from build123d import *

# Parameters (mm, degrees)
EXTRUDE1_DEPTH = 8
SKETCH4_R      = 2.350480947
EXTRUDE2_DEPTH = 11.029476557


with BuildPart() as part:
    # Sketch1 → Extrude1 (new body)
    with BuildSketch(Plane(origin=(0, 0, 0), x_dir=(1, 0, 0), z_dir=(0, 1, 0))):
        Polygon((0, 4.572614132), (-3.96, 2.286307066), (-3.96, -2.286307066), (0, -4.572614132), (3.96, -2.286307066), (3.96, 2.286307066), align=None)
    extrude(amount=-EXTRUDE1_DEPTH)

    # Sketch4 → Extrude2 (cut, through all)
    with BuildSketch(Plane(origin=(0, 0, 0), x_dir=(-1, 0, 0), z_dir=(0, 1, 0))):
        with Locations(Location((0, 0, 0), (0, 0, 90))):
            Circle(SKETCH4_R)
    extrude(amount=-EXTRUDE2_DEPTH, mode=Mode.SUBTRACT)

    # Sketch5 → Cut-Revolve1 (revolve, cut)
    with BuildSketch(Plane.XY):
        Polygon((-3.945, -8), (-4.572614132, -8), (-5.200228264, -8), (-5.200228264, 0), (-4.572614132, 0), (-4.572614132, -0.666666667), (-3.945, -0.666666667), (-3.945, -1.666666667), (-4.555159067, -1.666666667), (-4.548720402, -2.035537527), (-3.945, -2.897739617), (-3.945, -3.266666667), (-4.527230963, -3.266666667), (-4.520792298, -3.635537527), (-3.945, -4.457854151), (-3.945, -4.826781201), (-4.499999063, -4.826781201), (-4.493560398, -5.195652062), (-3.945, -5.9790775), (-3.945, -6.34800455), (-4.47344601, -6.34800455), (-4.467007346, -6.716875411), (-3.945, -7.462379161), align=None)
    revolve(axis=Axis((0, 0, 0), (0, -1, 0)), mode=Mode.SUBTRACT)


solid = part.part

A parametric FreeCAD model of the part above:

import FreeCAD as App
import Part
import Sketcher

V = App.Vector
Q = App.Units.Quantity

doc = App.newDocument("Part")
body = doc.addObject("PartDesign::Body", "Body")

# Sketch on XZ plane
sketch1 = body.newObject("Sketcher::SketchObject", "Sketch")
sketch1.AttachmentSupport = (doc.getObject("XZ_Plane"), [""])
sketch1.MapMode = "FlatFace"
sketch1.addGeometry([
    Part.LineSegment(V(0, -4.6, 0), V(-4, -2.3, 0)),  # 0
    Part.LineSegment(V(-4, -2.3, 0), V(-4, 2.3, 0)),  # 1
    Part.LineSegment(V(-4, 2.3, 0), V(0, 4.6, 0)),  # 2
    Part.LineSegment(V(0, 4.6, 0), V(4, 2.3, 0)),  # 3
    Part.LineSegment(V(4, 2.3, 0), V(4, -2.3, 0)),  # 4
    Part.LineSegment(V(4, -2.3, 0), V(0, -4.6, 0)),  # 5
], False)
sketch1.addConstraint([
    Sketcher.Constraint("Coincident", 0, 2, 1, 1),
    Sketcher.Constraint("Coincident", 1, 2, 2, 1),
    Sketcher.Constraint("Coincident", 2, 2, 3, 1),
    Sketcher.Constraint("Coincident", 3, 2, 4, 1),
    Sketcher.Constraint("Coincident", 4, 2, 5, 1),
    Sketcher.Constraint("Coincident", 5, 2, 0, 1),
    Sketcher.Constraint("Vertical", 1),
    Sketcher.Constraint("Vertical", 4),
    Sketcher.Constraint("Symmetric", 0, 2, 3, 2, -1, 1),
    Sketcher.Constraint("Symmetric", 2, 2, 5, 2, -1, 1),
    Sketcher.Constraint("PointOnObject", 2, 2, -2),
    Sketcher.Constraint("Parallel", 2, 5),
    Sketcher.Constraint("Horizontal", 1, 2, 3, 2),
    Sketcher.Constraint("Angle", 0, Q("150 deg")),
    Sketcher.Constraint("DistanceX", 0, 2, -1, 1, Q("3.96 mm")),
    Sketcher.Constraint("DistanceY", 1, 1, 1, 2, Q("4.572614 mm")),
])
pad1 = body.newObject("PartDesign::Pad", "Pad")
pad1.Profile = sketch1
pad1.Length = 8

# Sketch on XZ plane
sketch2 = body.newObject("Sketcher::SketchObject", "Sketch001")
sketch2.AttachmentSupport = (doc.getObject("XZ_Plane"), [""])
sketch2.MapMode = "FlatFace"
sketch2.addGeometry(Part.Circle(V(0, 0, 0), V(0, 0, 1), 2.4), False)
sketch2.addConstraint([
    Sketcher.Constraint("Coincident", 0, 3, -1, 1),
    Sketcher.Constraint("Diameter", 0, Q("4.700962 mm")),
])
pocket1 = body.newObject("PartDesign::Pocket", "Pocket")
pocket1.Profile = sketch2
pocket1.Type = "ThroughAll"
pocket1.Reversed = True

# Sketch on XY plane
sketch3 = body.newObject("Sketcher::SketchObject", "Sketch002")
sketch3.AttachmentSupport = (doc.getObject("XY_Plane"), [""])
sketch3.MapMode = "FlatFace"
sketch3.addGeometry([
    Part.LineSegment(V(-5.2, -8, 0), V(-3.94, -8, 0)),  # 0
    Part.LineSegment(V(-3.94, -8, 0), V(-3.94, -7.46, 0)),  # 1
    Part.LineSegment(V(-3.94, -7.46, 0), V(-4.47, -6.72, 0)),  # 2
    Part.LineSegment(V(-4.47, -6.72, 0), V(-4.47, -6.35, 0)),  # 3
    Part.LineSegment(V(-4.47, -6.35, 0), V(-3.94, -6.35, 0)),  # 4
    Part.LineSegment(V(-3.94, -6.35, 0), V(-3.94, -5.98, 0)),  # 5
    Part.LineSegment(V(-3.94, -5.98, 0), V(-4.49, -5.2, 0)),  # 6
    Part.LineSegment(V(-4.49, -5.2, 0), V(-4.5, -4.83, 0)),  # 7
    Part.LineSegment(V(-4.5, -4.83, 0), V(-3.94, -4.83, 0)),  # 8
    Part.LineSegment(V(-3.94, -4.83, 0), V(-3.94, -4.46, 0)),  # 9
    Part.LineSegment(V(-3.94, -4.46, 0), V(-4.52, -3.64, 0)),  # 10
    Part.LineSegment(V(-4.52, -3.64, 0), V(-4.53, -3.27, 0)),  # 11
    Part.LineSegment(V(-4.53, -3.27, 0), V(-3.94, -3.27, 0)),  # 12
    Part.LineSegment(V(-3.94, -3.27, 0), V(-3.94, -2.9, 0)),  # 13
    Part.LineSegment(V(-3.94, -2.9, 0), V(-4.55, -2.04, 0)),  # 14
    Part.LineSegment(V(-4.55, -2.04, 0), V(-4.56, -1.67, 0)),  # 15
    Part.LineSegment(V(-4.56, -1.67, 0), V(-3.94, -1.67, 0)),  # 16
    Part.LineSegment(V(-3.94, -1.67, 0), V(-3.94, -0.67, 0)),  # 17
    Part.LineSegment(V(-3.94, -0.67, 0), V(-4.57, -0.67, 0)),  # 18
    Part.LineSegment(V(-4.57, -0.67, 0), V(-4.57, 0, 0)),  # 19
    Part.LineSegment(V(-4.57, 0, 0), V(-5.2, 0, 0)),  # 20
    Part.LineSegment(V(-5.2, 0, 0), V(-5.2, -8, 0)),  # 21
], False)
sketch3.addConstraint([
    Sketcher.Constraint("Coincident", 0, 2, 1, 1),
    Sketcher.Constraint("Coincident", 1, 2, 2, 1),
    Sketcher.Constraint("Coincident", 2, 2, 3, 1),
    Sketcher.Constraint("Coincident", 3, 2, 4, 1),
    Sketcher.Constraint("Coincident", 4, 2, 5, 1),
    Sketcher.Constraint("Coincident", 5, 2, 6, 1),
    Sketcher.Constraint("Coincident", 6, 2, 7, 1),
    Sketcher.Constraint("Coincident", 7, 2, 8, 1),
    Sketcher.Constraint("Coincident", 8, 2, 9, 1),
    Sketcher.Constraint("Coincident", 9, 2, 10, 1),
    Sketcher.Constraint("Coincident", 10, 2, 11, 1),
    Sketcher.Constraint("Coincident", 11, 2, 12, 1),
    Sketcher.Constraint("Coincident", 12, 2, 13, 1),
    Sketcher.Constraint("Coincident", 13, 2, 14, 1),
    Sketcher.Constraint("Coincident", 14, 2, 15, 1),
    Sketcher.Constraint("Coincident", 15, 2, 16, 1),
    Sketcher.Constraint("Coincident", 16, 2, 17, 1),
    Sketcher.Constraint("Coincident", 17, 2, 18, 1),
    Sketcher.Constraint("Coincident", 18, 2, 19, 1),
    Sketcher.Constraint("Coincident", 19, 2, 20, 1),
    Sketcher.Constraint("Coincident", 20, 2, 21, 1),
    Sketcher.Constraint("Coincident", 21, 2, 0, 1),
    Sketcher.Constraint("Horizontal", 0),
    Sketcher.Constraint("Vertical", 1),
    Sketcher.Constraint("Horizontal", 4),
    Sketcher.Constraint("Vertical", 5),
    Sketcher.Constraint("Horizontal", 8),
    Sketcher.Constraint("Vertical", 9),
    Sketcher.Constraint("Horizontal", 12),
    Sketcher.Constraint("Vertical", 13),
    Sketcher.Constraint("Horizontal", 16),
    Sketcher.Constraint("Vertical", 17),
    Sketcher.Constraint("Horizontal", 18),
    Sketcher.Constraint("Vertical", 19),
    Sketcher.Constraint("Horizontal", 20),
    Sketcher.Constraint("Vertical", 21),
    Sketcher.Constraint("PointOnObject", 19, 2, -1),
    Sketcher.Constraint("Parallel", 2, 6),
    Sketcher.Constraint("Parallel", 3, 7),
    Sketcher.Constraint("Parallel", 6, 10),
    Sketcher.Constraint("Parallel", 7, 11),
    Sketcher.Constraint("Parallel", 10, 14),
    Sketcher.Constraint("Parallel", 11, 15),
    Sketcher.Constraint("Vertical", 1, 2, 4, 2),
    Sketcher.Constraint("Vertical", 5, 2, 8, 2),
    Sketcher.Constraint("Vertical", 9, 2, 12, 2),
    Sketcher.Constraint("Vertical", 13, 2, 16, 2),
    Sketcher.Constraint("Equal", 18, 20),
    Sketcher.Constraint("Equal", 5, 9),
    Sketcher.Constraint("Equal", 9, 13),
    Sketcher.Constraint("Equal", 3, 7),
    Sketcher.Constraint("Equal", 7, 11),
    Sketcher.Constraint("Equal", 11, 15),
    Sketcher.Constraint("DistanceY", 17, 1, 17, 2, Q("1 mm")),
    Sketcher.Constraint("DistanceY", 21, 2, 21, 1, Q("8 mm")),
    Sketcher.Constraint("Angle", 2, Q("125 deg")),
    Sketcher.Constraint("Angle", 3, Q("91 deg")),
    Sketcher.Constraint("DistanceX", 7, 2, -1, 1, Q("4.499999 mm")),
    Sketcher.Constraint("DistanceY", 10, 2, 14, 2, Q("1.6 mm")),
    Sketcher.Constraint("DistanceX", 8, 1, 8, 2, Q("0.554999 mm")),
    Sketcher.Constraint("DistanceX", 0, 1, 0, 2, Q("1.255228 mm")),
    Sketcher.Constraint("DistanceX", 12, 1, 12, 2, Q("0.582231 mm")),
    Sketcher.Constraint("DistanceX", 16, 1, 16, 2, Q("0.610159 mm")),
    Sketcher.Constraint("DistanceY", 1, 1, 1, 2, Q("0.537621 mm")),
    Sketcher.Constraint("DistanceY", 1, 2, 5, 2, Q("1.483302 mm")),
    Sketcher.Constraint("DistanceY", 5, 1, 5, 2, Q("0.368927 mm")),
])
groove = body.newObject("PartDesign::Groove", "Groove")
groove.Profile = sketch3
groove.ReferenceAxis = (sketch3, ["V_Axis"])
groove.Angle = 360

doc.recompute()
